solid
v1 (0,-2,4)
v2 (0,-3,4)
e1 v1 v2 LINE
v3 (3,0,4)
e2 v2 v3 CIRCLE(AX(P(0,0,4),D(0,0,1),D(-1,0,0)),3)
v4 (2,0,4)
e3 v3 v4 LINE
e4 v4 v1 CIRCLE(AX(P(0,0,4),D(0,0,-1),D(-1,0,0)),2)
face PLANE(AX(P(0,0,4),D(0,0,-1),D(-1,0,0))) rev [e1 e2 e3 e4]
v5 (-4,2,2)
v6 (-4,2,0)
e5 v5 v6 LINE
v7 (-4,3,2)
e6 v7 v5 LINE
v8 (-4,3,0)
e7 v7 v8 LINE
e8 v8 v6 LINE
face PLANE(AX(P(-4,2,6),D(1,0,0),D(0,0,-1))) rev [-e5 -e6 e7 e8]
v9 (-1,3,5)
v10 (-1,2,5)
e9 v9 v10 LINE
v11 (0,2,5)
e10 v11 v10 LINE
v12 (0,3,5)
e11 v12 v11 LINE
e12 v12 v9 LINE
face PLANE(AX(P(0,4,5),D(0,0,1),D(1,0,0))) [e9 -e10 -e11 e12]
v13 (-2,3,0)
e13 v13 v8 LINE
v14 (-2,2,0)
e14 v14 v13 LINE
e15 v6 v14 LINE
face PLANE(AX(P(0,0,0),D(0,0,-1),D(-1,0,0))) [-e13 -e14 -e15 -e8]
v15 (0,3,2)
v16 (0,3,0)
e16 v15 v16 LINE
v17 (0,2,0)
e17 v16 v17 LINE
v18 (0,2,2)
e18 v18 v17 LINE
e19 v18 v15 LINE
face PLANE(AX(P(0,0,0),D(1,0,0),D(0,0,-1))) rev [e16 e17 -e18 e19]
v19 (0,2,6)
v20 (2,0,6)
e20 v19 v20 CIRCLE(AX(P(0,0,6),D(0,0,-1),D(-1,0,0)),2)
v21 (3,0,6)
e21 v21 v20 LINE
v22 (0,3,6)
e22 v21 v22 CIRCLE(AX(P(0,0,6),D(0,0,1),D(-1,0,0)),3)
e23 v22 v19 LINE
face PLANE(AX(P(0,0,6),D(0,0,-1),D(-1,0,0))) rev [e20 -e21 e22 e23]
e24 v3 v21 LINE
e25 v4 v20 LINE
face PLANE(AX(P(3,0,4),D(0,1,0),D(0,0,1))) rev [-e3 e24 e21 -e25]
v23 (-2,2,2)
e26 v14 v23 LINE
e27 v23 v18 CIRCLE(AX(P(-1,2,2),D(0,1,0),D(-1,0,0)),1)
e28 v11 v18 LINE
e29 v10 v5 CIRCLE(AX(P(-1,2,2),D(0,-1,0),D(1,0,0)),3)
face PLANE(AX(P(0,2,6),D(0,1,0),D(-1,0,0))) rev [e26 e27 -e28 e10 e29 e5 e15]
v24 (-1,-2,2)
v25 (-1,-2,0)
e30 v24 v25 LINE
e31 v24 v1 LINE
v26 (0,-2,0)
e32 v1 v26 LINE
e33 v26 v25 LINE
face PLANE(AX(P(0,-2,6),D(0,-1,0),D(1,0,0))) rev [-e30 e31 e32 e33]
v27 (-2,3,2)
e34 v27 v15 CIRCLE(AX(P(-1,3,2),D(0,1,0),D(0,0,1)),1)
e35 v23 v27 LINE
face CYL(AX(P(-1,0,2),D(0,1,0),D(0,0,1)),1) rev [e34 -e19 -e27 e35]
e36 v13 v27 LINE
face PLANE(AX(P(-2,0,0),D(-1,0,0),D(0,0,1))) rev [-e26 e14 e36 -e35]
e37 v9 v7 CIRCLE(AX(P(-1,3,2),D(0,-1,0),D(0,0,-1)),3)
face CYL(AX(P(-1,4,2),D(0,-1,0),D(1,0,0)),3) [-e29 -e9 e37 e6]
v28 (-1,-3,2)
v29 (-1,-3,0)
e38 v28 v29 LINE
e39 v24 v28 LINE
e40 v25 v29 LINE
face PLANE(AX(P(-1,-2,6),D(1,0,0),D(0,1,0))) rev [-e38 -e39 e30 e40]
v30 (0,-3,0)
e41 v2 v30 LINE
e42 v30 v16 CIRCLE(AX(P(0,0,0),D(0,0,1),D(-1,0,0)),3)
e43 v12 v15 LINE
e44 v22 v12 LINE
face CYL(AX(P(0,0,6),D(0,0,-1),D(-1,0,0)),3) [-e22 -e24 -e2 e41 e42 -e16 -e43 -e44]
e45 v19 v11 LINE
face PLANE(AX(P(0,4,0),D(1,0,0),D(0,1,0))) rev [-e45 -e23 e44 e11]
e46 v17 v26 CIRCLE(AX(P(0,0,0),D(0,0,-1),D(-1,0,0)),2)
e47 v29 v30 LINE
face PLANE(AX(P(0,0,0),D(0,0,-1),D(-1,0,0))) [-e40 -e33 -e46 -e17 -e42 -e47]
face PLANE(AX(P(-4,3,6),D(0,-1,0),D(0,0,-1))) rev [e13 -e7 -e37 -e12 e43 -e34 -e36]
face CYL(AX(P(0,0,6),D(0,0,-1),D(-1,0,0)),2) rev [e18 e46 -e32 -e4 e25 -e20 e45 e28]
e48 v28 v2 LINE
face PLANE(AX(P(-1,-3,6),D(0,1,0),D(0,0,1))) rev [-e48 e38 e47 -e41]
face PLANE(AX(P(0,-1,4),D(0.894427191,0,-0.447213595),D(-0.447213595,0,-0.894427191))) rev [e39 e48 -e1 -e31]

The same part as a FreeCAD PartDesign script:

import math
import FreeCAD as App
import Part
import Sketcher

V = App.Vector


def add_polygon(sketch, points):
    """Adds a closed chain of lines whose ends are joined by coincident constraints."""
    first, n = sketch.GeometryCount, len(points)
    for a, b in zip(points, points[1:] + points[:1]):
        sketch.addGeometry(Part.LineSegment(App.Vector(*a, 0), App.Vector(*b, 0)), False)
    for i in range(n):
        sketch.addConstraint(Sketcher.Constraint("Coincident", first + i, 2, first + (i + 1) % n, 1))

doc = App.newDocument("Part")
body = doc.addObject("PartDesign::Body", "Body")

sketch1 = body.newObject("Sketcher::SketchObject", "Sketch")
sketch1.AttachmentSupport = (doc.getObject("XY_Plane"), [""])
sketch1.MapMode = "FlatFace"
sketch1.addGeometry(Part.LineSegment(V(-4, 2, 0), V(0, 2, 0)), False)
sketch1.addGeometry(Part.ArcOfCircle(Part.Circle(V(0, 0, 0), V(0, 0, 1), 2), math.radians(-90), math.radians(90)), False)
sketch1.addGeometry(Part.LineSegment(V(0, -2, 0), V(-1, -2, 0)), False)
sketch1.addGeometry(Part.LineSegment(V(-1, -2, 0), V(-1, -3, 0)), False)
sketch1.addGeometry(Part.LineSegment(V(-1, -3, 0), V(0, -3, 0)), False)
sketch1.addGeometry(Part.ArcOfCircle(Part.Circle(V(0, 0, 0), V(0, 0, 1), 3), math.radians(-90), math.radians(90)), False)
sketch1.addGeometry(Part.LineSegment(V(0, 3, 0), V(-4, 3, 0)), False)
sketch1.addGeometry(Part.LineSegment(V(-4, 3, 0), V(-4, 2, 0)), False)
sketch1.addConstraint(Sketcher.Constraint("Tangent", 0, 2, 1, 2))
sketch1.addConstraint(Sketcher.Constraint("Tangent", 1, 1, 2, 1))
sketch1.addConstraint(Sketcher.Constraint("Coincident", 2, 2, 3, 1))
sketch1.addConstraint(Sketcher.Constraint("Coincident", 3, 2, 4, 1))
sketch1.addConstraint(Sketcher.Constraint("Tangent", 4, 2, 5, 1))
sketch1.addConstraint(Sketcher.Constraint("Tangent", 5, 2, 6, 1))
sketch1.addConstraint(Sketcher.Constraint("Coincident", 6, 2, 7, 1))
sketch1.addConstraint(Sketcher.Constraint("Coincident", 7, 2, 0, 1))
sketch1.addConstraint(Sketcher.Constraint("Horizontal", 0))
sketch1.addConstraint(Sketcher.Constraint("Horizontal", 2))
sketch1.addConstraint(Sketcher.Constraint("Vertical", 3))
sketch1.addConstraint(Sketcher.Constraint("Horizontal", 4))
sketch1.addConstraint(Sketcher.Constraint("Horizontal", 6))
sketch1.addConstraint(Sketcher.Constraint("Vertical", 7))
sketch1.addConstraint(Sketcher.Constraint("Coincident", 1, 3, -1, 1))
sketch1.addConstraint(Sketcher.Constraint("Coincident", 5, 3, -1, 1))
sketch1.addConstraint(Sketcher.Constraint("Equal", 4, 3))
sketch1.addConstraint(Sketcher.Constraint("Radius", 1, 2.0))
sketch1.addConstraint(Sketcher.Constraint("Radius", 5, 3.0))
sketch1.addConstraint(Sketcher.Constraint("DistanceX", 0, 1, 0, 2, 4.0))
pad1 = body.newObject("PartDesign::Pad", "Pad")
pad1.Profile = sketch1
pad1.Length = 6

sketch2 = body.newObject("Sketcher::SketchObject", "Sketch001")
sketch2.AttachmentSupport = (doc.getObject("XY_Plane"), [""])
sketch2.MapMode = "FlatFace"
sketch2.AttachmentOffset = App.Placement(V(0, 0, 6), App.Rotation())
sketch2.addGeometry(Part.LineSegment(V(3, 0, 0), V(2, 0, 0)), False)
sketch2.addGeometry(Part.ArcOfCircle(Part.Circle(V(0, 0, 0), V(0, 0, 1), 2), math.radians(-90), math.radians(0)), False)
sketch2.addGeometry(Part.LineSegment(V(0, -2, 0), V(0, -3, 0)), False)
sketch2.addGeometry(Part.ArcOfCircle(Part.Circle(V(0, 0, 0), V(0, 0, 1), 3), math.radians(-90), math.radians(0)), False)
sketch2.addConstraint(Sketcher.Constraint("Coincident", 0, 2, 1, 2))
sketch2.addConstraint(Sketcher.Constraint("Coincident", 1, 1, 2, 1))
sketch2.addConstraint(Sketcher.Constraint("Coincident", 2, 2, 3, 1))
sketch2.addConstraint(Sketcher.Constraint("Coincident", 3, 2, 0, 1))
sketch2.addConstraint(Sketcher.Constraint("Horizontal", 0))
sketch2.addConstraint(Sketcher.Constraint("Vertical", 2))
sketch2.addConstraint(Sketcher.Constraint("Coincident", 1, 3, -1, 1))
sketch2.addConstraint(Sketcher.Constraint("Coincident", 3, 3, -1, 1))
sketch2.addConstraint(Sketcher.Constraint("PointOnObject", 0, 2, -1))
sketch2.addConstraint(Sketcher.Constraint("PointOnObject", 1, 1, -2))
sketch2.addConstraint(Sketcher.Constraint("Radius", 1, 2.0))
sketch2.addConstraint(Sketcher.Constraint("Radius", 3, 3.0))
pocket1 = body.newObject("PartDesign::Pocket", "Pocket")
pocket1.Profile = sketch2
pocket1.Length = 2

sketch3 = body.newObject("Sketcher::SketchObject", "Sketch002")
sketch3.AttachmentSupport = (doc.getObject("XZ_Plane"), [""])
sketch3.MapMode = "FlatFace"
sketch3.AttachmentOffset = App.Placement(V(0, 0, 3), App.Rotation())
add_polygon(sketch3, [(-1, 2), (0, 4), (0, 6), (-1, 6)])
sketch3.addConstraint(Sketcher.Constraint("Vertical", 1))
sketch3.addConstraint(Sketcher.Constraint("Horizontal", 2))
sketch3.addConstraint(Sketcher.Constraint("Vertical", 3))
sketch3.addConstraint(Sketcher.Constraint("PointOnObject", 0, 2, -2))
sketch3.addConstraint(Sketcher.Constraint("DistanceX", 2, 2, 2, 1, 1.0))
sketch3.addConstraint(Sketcher.Constraint("DistanceY", 1, 1, 1, 2, 2.0))
sketch3.addConstraint(Sketcher.Constraint("DistanceY", 3, 2, 3, 1, 4.0))
sketch3.addConstraint(Sketcher.Constraint("DistanceY", -1, 1, 0, 2, 4.0))
pocket2 = body.newObject("PartDesign::Pocket", "Pocket001")
pocket2.Profile = sketch3
pocket2.Length = 2

sketch4 = body.newObject("Sketcher::SketchObject", "Sketch003")
sketch4.AttachmentSupport = (doc.getObject("XZ_Plane"), [""])
sketch4.MapMode = "FlatFace"
sketch4.AttachmentOffset = App.Placement(V(0, 0, -2), App.Rotation())
sketch4.addGeometry(Part.LineSegment(V(-1, 5, 0), V(0, 5, 0)), False)
sketch4.addGeometry(Part.LineSegment(V(0, 5, 0), V(0, 6, 0)), False)
sketch4.addGeometry(Part.LineSegment(V(0, 6, 0), V(-4, 6, 0)), False)
sketch4.addGeometry(Part.LineSegment(V(-4, 6, 0), V(-4, 2, 0)), False)
sketch4.addGeometry(Part.ArcOfCircle(Part.Circle(V(-1, 2, 0), V(0, 0, 1), 3), math.radians(90), math.radians(180)), False)
sketch4.addConstraint(Sketcher.Constraint("Coincident", 0, 2, 1, 1))
sketch4.addConstraint(Sketcher.Constraint("Coincident", 1, 2, 2, 1))
sketch4.addConstraint(Sketcher.Constraint("Coincident", 2, 2, 3, 1))
sketch4.addConstraint(Sketcher.Constraint("Tangent", 3, 2, 4, 2))
sketch4.addConstraint(Sketcher.Constraint("Tangent", 4, 1, 0, 1))
sketch4.addConstraint(Sketcher.Constraint("Horizontal", 0))
sketch4.addConstraint(Sketcher.Constraint("Vertical", 1))
sketch4.addConstraint(Sketcher.Constraint("Horizontal", 2))
sketch4.addConstraint(Sketcher.Constraint("Vertical", 3))
sketch4.addConstraint(Sketcher.Constraint("PointOnObject", 0, 2, -2))
sketch4.addConstraint(Sketcher.Constraint("Equal", 0, 1))
sketch4.addConstraint(Sketcher.Constraint("Radius", 4, 3.0))
sketch4.addConstraint(Sketcher.Constraint("DistanceX", 0, 1, 0, 2, 1.0))
sketch4.addConstraint(Sketcher.Constraint("DistanceY", -1, 1, 4, 3, 2.0))
pocket3 = body.newObject("PartDesign::Pocket", "Pocket002")
pocket3.Profile = sketch4
pocket3.Length = 2

sketch5 = body.newObject("Sketcher::SketchObject", "Sketch004")
sketch5.AttachmentSupport = (doc.getObject("XZ_Plane"), [""])
sketch5.MapMode = "FlatFace"
sketch5.AttachmentOffset = App.Placement(V(0, 0, -3), App.Rotation())
sketch5.addGeometry(Part.LineSegment(V(-2, 0, 0), V(-2, 2, 0)), False)
sketch5.addGeometry(Part.ArcOfCircle(Part.Circle(V(-1, 2, 0), V(0, 0, 1), 1), math.radians(0), math.radians(180)), False)
sketch5.addGeometry(Part.LineSegment(V(0, 2, 0), V(0, 0, 0)), False)
sketch5.addGeometry(Part.LineSegment(V(0, 0, 0), V(-2, 0, 0)), False)
sketch5.addConstraint(Sketcher.Constraint("Tangent", 0, 2, 1, 2))
sketch5.addConstraint(Sketcher.Constraint("Tangent", 1, 1, 2, 1))
sketch5.addConstraint(Sketcher.Constraint("Coincident", 2, 2, 3, 1))
sketch5.addConstraint(Sketcher.Constraint("Coincident", 3, 2, 0, 1))
sketch5.addConstraint(Sketcher.Constraint("Vertical", 0))
sketch5.addConstraint(Sketcher.Constraint("Vertical", 2))
sketch5.addConstraint(Sketcher.Constraint("Horizontal", 3))
sketch5.addConstraint(Sketcher.Constraint("Coincident", 2, 2, -1, 1))
sketch5.addConstraint(Sketcher.Constraint("Equal", 3, 0))
sketch5.addConstraint(Sketcher.Constraint("Radius", 1, 1.0))
pocket4 = body.newObject("PartDesign::Pocket", "Pocket003")
pocket4.Profile = sketch5
pocket4.Length = 3
pocket4.Reversed = True

doc.recompute()
